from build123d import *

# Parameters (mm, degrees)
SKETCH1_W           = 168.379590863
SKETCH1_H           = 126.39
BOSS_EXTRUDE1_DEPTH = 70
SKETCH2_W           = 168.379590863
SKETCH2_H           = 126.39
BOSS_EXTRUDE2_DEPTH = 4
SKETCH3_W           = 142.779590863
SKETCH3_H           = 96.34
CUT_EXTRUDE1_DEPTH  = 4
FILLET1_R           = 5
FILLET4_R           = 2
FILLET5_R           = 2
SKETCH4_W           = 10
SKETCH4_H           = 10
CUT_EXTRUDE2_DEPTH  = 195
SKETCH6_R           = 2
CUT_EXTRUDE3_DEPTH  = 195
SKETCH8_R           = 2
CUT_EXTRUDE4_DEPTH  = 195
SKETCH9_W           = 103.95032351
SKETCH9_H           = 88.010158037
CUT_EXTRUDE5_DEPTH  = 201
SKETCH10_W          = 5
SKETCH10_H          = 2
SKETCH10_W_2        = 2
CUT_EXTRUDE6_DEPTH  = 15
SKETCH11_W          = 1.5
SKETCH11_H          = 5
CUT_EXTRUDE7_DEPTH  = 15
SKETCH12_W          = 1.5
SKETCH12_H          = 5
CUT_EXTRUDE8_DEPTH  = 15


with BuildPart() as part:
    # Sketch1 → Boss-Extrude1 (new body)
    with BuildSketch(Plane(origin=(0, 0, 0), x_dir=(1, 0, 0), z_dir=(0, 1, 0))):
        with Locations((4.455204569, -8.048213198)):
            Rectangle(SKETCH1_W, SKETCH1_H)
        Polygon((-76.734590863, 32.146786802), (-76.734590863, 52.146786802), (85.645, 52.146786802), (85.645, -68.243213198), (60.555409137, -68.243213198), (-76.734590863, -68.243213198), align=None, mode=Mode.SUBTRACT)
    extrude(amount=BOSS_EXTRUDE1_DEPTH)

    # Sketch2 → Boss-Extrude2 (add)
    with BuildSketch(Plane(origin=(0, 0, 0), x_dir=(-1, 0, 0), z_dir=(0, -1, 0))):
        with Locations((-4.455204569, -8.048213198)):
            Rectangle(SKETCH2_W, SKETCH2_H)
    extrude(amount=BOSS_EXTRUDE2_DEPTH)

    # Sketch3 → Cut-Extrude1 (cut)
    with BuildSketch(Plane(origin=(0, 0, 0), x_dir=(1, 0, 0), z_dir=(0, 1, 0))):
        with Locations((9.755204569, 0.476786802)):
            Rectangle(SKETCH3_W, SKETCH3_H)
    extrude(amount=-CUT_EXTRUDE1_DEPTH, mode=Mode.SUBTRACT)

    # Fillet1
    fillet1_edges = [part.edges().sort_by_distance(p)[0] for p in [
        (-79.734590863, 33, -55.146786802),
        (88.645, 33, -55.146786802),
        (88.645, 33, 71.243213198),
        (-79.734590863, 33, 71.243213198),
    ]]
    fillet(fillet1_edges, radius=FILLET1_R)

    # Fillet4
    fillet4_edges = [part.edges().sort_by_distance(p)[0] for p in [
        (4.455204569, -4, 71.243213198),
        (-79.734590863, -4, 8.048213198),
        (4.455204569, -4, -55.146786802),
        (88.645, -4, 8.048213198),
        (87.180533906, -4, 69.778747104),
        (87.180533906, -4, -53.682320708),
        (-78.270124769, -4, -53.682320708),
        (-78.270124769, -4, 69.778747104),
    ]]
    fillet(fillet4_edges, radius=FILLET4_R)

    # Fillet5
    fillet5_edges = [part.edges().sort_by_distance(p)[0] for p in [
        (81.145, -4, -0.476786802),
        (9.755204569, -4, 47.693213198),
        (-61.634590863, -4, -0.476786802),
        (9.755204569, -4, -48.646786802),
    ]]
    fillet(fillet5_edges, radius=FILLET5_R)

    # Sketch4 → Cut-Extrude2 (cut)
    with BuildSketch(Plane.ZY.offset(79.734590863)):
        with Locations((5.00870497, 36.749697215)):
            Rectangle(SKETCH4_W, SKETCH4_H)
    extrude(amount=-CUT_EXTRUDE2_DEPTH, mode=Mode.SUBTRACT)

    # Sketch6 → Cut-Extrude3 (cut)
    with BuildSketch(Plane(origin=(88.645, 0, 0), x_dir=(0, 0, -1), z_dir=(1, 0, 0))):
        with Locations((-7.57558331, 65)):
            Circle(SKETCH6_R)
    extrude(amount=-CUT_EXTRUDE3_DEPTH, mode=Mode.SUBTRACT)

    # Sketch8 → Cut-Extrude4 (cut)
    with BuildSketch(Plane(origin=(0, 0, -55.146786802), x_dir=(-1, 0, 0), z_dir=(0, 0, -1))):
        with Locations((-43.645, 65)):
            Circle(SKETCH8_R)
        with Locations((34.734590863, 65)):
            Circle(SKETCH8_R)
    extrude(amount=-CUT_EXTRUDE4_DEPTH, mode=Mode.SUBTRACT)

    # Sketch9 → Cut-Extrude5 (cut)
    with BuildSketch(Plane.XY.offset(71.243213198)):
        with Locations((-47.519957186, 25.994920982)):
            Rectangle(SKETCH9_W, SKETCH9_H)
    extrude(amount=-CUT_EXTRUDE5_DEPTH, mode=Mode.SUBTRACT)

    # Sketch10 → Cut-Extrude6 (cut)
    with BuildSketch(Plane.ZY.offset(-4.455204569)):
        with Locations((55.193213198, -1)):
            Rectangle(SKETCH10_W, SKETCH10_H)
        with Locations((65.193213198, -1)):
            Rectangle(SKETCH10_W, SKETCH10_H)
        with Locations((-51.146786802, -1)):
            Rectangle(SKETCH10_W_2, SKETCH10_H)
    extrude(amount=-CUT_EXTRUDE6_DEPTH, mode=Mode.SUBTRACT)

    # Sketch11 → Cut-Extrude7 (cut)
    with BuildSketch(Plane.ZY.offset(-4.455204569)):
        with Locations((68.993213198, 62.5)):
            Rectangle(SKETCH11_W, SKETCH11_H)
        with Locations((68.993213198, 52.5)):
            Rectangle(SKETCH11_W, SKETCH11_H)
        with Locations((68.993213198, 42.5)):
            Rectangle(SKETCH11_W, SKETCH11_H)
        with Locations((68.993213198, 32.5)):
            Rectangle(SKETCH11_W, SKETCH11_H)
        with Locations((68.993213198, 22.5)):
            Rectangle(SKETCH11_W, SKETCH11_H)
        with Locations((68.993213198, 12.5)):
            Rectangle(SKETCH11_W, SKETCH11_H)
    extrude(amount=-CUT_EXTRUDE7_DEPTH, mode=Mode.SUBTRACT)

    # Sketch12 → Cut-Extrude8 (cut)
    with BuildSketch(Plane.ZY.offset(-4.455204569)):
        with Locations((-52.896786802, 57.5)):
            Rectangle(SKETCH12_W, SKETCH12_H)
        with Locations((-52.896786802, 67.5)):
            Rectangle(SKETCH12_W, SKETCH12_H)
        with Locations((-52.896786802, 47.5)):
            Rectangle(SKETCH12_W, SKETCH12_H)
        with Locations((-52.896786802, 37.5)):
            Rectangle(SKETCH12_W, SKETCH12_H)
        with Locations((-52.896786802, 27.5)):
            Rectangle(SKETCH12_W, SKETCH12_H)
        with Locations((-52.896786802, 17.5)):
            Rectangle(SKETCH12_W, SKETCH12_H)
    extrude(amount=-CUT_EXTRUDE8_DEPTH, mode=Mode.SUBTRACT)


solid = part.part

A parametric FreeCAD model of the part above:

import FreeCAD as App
import Part
import Sketcher
from FreeCAD import Vector


def edges_at(feature, points):
    """Names of the edges that pass closest to the given points."""
    edges = feature.Shape.Edges
    near = lambda p: min(range(len(edges)), key=lambda i: edges[i].distToShape(Part.Vertex(*p))[0])
    return sorted({f"Edge{near(p) + 1}" for p in points})


def add_polygon(sketch, points):
    """Adds a closed chain of lines whose ends are joined by coincident constraints."""
    first, n = sketch.GeometryCount, len(points)
    for a, b in zip(points, points[1:] + points[:1]):
        sketch.addGeometry(Part.LineSegment(App.Vector(*a, 0), App.Vector(*b, 0)), False)
    for i in range(n):
        sketch.addConstraint(Sketcher.Constraint("Coincident", first + i, 2, first + (i + 1) % n, 1))

doc = App.newDocument("Part")
body = doc.addObject("PartDesign::Body", "Body")

sketch1 = doc.addObject("Sketcher::SketchObject", "Sketch")
body.addObject(sketch1)
sketch1.AttachmentSupport = (doc.XZ_Plane, [""])
sketch1.MapMode = "FlatFace"
add_polygon(sketch1, [(-80, -55), (-80, 71), (89, 71), (89, -55)])
add_polygon(sketch1, [(-77, 68), (-77, -52), (86, -52), (86, 68)])
sketch1.addConstraint([
    Sketcher.Constraint("Vertical", 0),
    Sketcher.Constraint("Horizontal", 1),
    Sketcher.Constraint("Vertical", 2),
    Sketcher.Constraint("Horizontal", 3),
    Sketcher.Constraint("Vertical", 4),
    Sketcher.Constraint("Horizontal", 5),
    Sketcher.Constraint("Vertical", 6),
    Sketcher.Constraint("Horizontal", 7),
    Sketcher.Constraint("DistanceX", 3, 2, 4, 2, 3.0),
    Sketcher.Constraint("DistanceY", 3, 2, 4, 2, 3.0),
    Sketcher.Constraint("DistanceX", 5, 2, 2, 2, 3.0),
    Sketcher.Constraint("DistanceY", 6, 2, 1, 2, 3.0),
    Sketcher.Constraint("DistanceY", 0, 1, 0, 2, 126.39),
    Sketcher.Constraint("DistanceX", -1, 1, 1, 2, 88.645),
    Sketcher.Constraint("DistanceX", 1, 1, 1, 2, 168.379591),
    Sketcher.Constraint("DistanceY", -1, 1, 0, 2, 71.243213),
])
pad1 = doc.addObject("PartDesign::Pad", "Pad")
body.addObject(pad1)
pad1.Profile = sketch1
pad1.Length = 70
pad1.Reversed = True

sketch2 = doc.addObject("Sketcher::SketchObject", "Sketch001")
body.addObject(sketch2)
sketch2.AttachmentSupport = (doc.XZ_Plane, [""])
sketch2.MapMode = "FlatFace"
add_polygon(sketch2, [(89, -55), (89, 71), (-80, 71), (-80, -55)])
sketch2.addConstraint([
    Sketcher.Constraint("Vertical", 0),
    Sketcher.Constraint("Horizontal", 1),
    Sketcher.Constraint("Vertical", 2),
    Sketcher.Constraint("Horizontal", 3),
    Sketcher.Constraint("DistanceY", 0, 1, 0, 2, 126.39),
    Sketcher.Constraint("DistanceX", -1, 1, 0, 2, 88.645),
    Sketcher.Constraint("DistanceX", 1, 2, 1, 1, 168.379591),
    Sketcher.Constraint("DistanceY", -1, 1, 0, 2, 71.243213),
])
pad2 = doc.addObject("PartDesign::Pad", "Pad001")
body.addObject(pad2)
pad2.Profile = sketch2
pad2.Length = 4

sketch3 = doc.addObject("Sketcher::SketchObject", "Sketch002")
body.addObject(sketch3)
sketch3.AttachmentSupport = (doc.XZ_Plane, [""])
sketch3.MapMode = "FlatFace"
add_polygon(sketch3, [(-62, -49), (-62, 48), (81, 48), (81, -49)])
sketch3.addConstraint([
    Sketcher.Constraint("Vertical", 0),
    Sketcher.Constraint("Horizontal", 1),
    Sketcher.Constraint("Vertical", 2),
    Sketcher.Constraint("Horizontal", 3),
    Sketcher.Constraint("DistanceY", 0, 1, 0, 2, 96.34),
    Sketcher.Constraint("DistanceX", -1, 1, 1, 2, 81.145),
    Sketcher.Constraint("DistanceX", 1, 1, 1, 2, 142.779591),
    Sketcher.Constraint("DistanceY", -1, 1, 0, 2, 47.693213),
])
pocket1 = doc.addObject("PartDesign::Pocket", "Pocket")
body.addObject(pocket1)
pocket1.Profile = sketch3
pocket1.Length = 4
pocket1.Reversed = True
doc.recompute()

fillet = doc.addObject("PartDesign::Fillet", "Fillet")
body.addObject(fillet)
fillet.Base = (pocket1, edges_at(pocket1, [
    (-79.735, 33, -55.147),
    (88.645, 33, -55.147),
    (88.645, 33, 71.243),
    (-79.735, 33, 71.243),
]))
fillet.Radius = 5
doc.recompute()

fillet2 = doc.addObject("PartDesign::Fillet", "Fillet001")
body.addObject(fillet2)
fillet2.Base = (fillet, edges_at(fillet, [
    (4.455, -4, 71.243),
    (-79.735, -4, 8.048),
    (4.455, -4, -55.147),
    (88.645, -4, 8.048),
    (87.181, -4, 69.779),
    (87.181, -4, -53.682),
    (-78.27, -4, -53.682),
    (-78.27, -4, 69.779),
]))
fillet2.Radius = 2
doc.recompute()

fillet3 = doc.addObject("PartDesign::Fillet", "Fillet002")
body.addObject(fillet3)
fillet3.Base = (fillet2, edges_at(fillet2, [
    (81.145, -4, -0.477),
    (9.755, -4, 47.693),
    (-61.635, -4, -0.477),
    (9.755, -4, -48.647),
]))
fillet3.Radius = 2

sketch4 = doc.addObject("Sketcher::SketchObject", "Sketch003")
body.addObject(sketch4)
sketch4.AttachmentSupport = (doc.YZ_Plane, [""])
sketch4.MapMode = "FlatFace"
sketch4.AttachmentOffset = App.Placement(Vector(0, 0, -79.734591), App.Rotation())
add_polygon(sketch4, [(42, 0), (32, 0), (32, 10), (42, 10)])
sketch4.addConstraint([
    Sketcher.Constraint("Horizontal", 0),
    Sketcher.Constraint("Vertical", 1),
    Sketcher.Constraint("Horizontal", 2),
    Sketcher.Constraint("Vertical", 3),
    Sketcher.Constraint("Equal", 2, 1),
    Sketcher.Constraint("DistanceX", 0, 2, 0, 1, 10.0),
    Sketcher.Constraint("DistanceX", -1, 1, 0, 2, 31.749697),
    Sketcher.Constraint("DistanceY", -1, 1, 0, 2, 0.008705),
])
pocket2 = doc.addObject("PartDesign::Pocket", "Pocket001")
body.addObject(pocket2)
pocket2.Profile = sketch4
pocket2.Length = 195
pocket2.Reversed = True

sketch5 = doc.addObject("Sketcher::SketchObject", "Sketch004")
body.addObject(sketch5)
sketch5.AttachmentSupport = (doc.YZ_Plane, [""])
sketch5.MapMode = "FlatFace"
sketch5.AttachmentOffset = App.Placement(Vector(0, 0, 88.645), App.Rotation())
sketch5.addGeometry(Part.Circle(Vector(65, 7.6, 0), Vector(0, 0, 1), 2), False)
sketch5.addConstraint([
    Sketcher.Constraint("Diameter", 0, 4.0),
    Sketcher.Constraint("DistanceX", -1, 1, 0, 3, 65.0),
    Sketcher.Constraint("DistanceY", -1, 1, 0, 3, 7.575583),
])
pocket3 = doc.addObject("PartDesign::Pocket", "Pocket002")
body.addObject(pocket3)
pocket3.Profile = sketch5
pocket3.Length = 195

sketch6 = doc.addObject("Sketcher::SketchObject", "Sketch005")
body.addObject(sketch6)
sketch6.AttachmentSupport = (doc.XY_Plane, [""])
sketch6.MapMode = "FlatFace"
sketch6.AttachmentOffset = App.Placement(Vector(0, 0, -55.146787), App.Rotation())
sketch6.addGeometry([
    Part.Circle(Vector(43.6, 65, 0), Vector(0, 0, 1), 2),
    Part.Circle(Vector(-34.7, 65, 0), Vector(0, 0, 1), 2),
], False)
sketch6.addConstraint([
    Sketcher.Constraint("Equal", 0, 1),
    Sketcher.Constraint("Horizontal", 0, 3, 1, 3),
    Sketcher.Constraint("Diameter", 0, 4.0),
    Sketcher.Constraint("DistanceY", -1, 1, 0, 3, 65.0),
    Sketcher.Constraint("DistanceX", -1, 1, 0, 3, 43.645),
    Sketcher.Constraint("DistanceX", 1, 3, -1, 1, 34.734591),
])
pocket4 = doc.addObject("PartDesign::Pocket", "Pocket003")
body.addObject(pocket4)
pocket4.Profile = sketch6
pocket4.Length = 195
pocket4.Reversed = True

sketch7 = doc.addObject("Sketcher::SketchObject", "Sketch006")
body.addObject(sketch7)
sketch7.AttachmentSupport = (doc.XY_Plane, [""])
sketch7.MapMode = "FlatFace"
sketch7.AttachmentOffset = App.Placement(Vector(0, 0, 71.243213), App.Rotation())
add_polygon(sketch7, [(-99, 70), (-99, -18), (4, -18), (4, 70)])
sketch7.addConstraint([
    Sketcher.Constraint("Vertical", 0),
    Sketcher.Constraint("Horizontal", 1),
    Sketcher.Constraint("Vertical", 2),
    Sketcher.Constraint("Horizontal", 3),
    Sketcher.Constraint("DistanceY", -1, 1, 2, 2, 70.0),
    Sketcher.Constraint("DistanceY", 0, 2, 0, 1, 88.010158),
    Sketcher.Constraint("DistanceX", 1, 1, 1, 2, 103.950324),
    Sketcher.Constraint("DistanceX", 0, 2, -1, 1, 99.495119),
])
pocket5 = doc.addObject("PartDesign::Pocket", "Pocket004")
body.addObject(pocket5)
pocket5.Profile = sketch7
pocket5.Length = 201

sketch8 = doc.addObject("Sketcher::SketchObject", "Sketch007")
body.addObject(sketch8)
sketch8.AttachmentSupport = (doc.YZ_Plane, [""])
sketch8.MapMode = "FlatFace"
sketch8.AttachmentOffset = App.Placement(Vector(0, 0, 4.455205), App.Rotation())
add_polygon(sketch8, [(0, 52.7), (-2, 52.7), (-2, 57.7), (0, 57.7)])
add_polygon(sketch8, [(0, 62.7), (-2, 62.7), (-2, 67.7), (0, 67.7)])
add_polygon(sketch8, [(0, -52.1), (-2, -52.1), (-2, -50.1), (0, -50.1)])
sketch8.addConstraint([
    Sketcher.Constraint("Horizontal", 0),
    Sketcher.Constraint("Vertical", 1),
    Sketcher.Constraint("Horizontal", 2),
    Sketcher.Constraint("Vertical", 3),
    Sketcher.Constraint("Horizontal", 4),
    Sketcher.Constraint("Vertical", 5),
    Sketcher.Constraint("Horizontal", 6),
    Sketcher.Constraint("Vertical", 7),
    Sketcher.Constraint("Horizontal", 8),
    Sketcher.Constraint("Vertical", 9),
    Sketcher.Constraint("Horizontal", 10),
    Sketcher.Constraint("Vertical", 11),
    Sketcher.Constraint("PointOnObject", 2, 2, -2),
    Sketcher.Constraint("PointOnObject", 6, 2, -2),
    Sketcher.Constraint("PointOnObject", 10, 2, -2),
    Sketcher.Constraint("Vertical", 1, 2, 4, 2),
    Sketcher.Constraint("Vertical", 5, 2, 8, 2),
    Sketcher.Constraint("Equal", 3, 5),
    Sketcher.Constraint("Equal", 10, 9),
    Sketcher.Constraint("DistanceX", 0, 2, 0, 1, 2.0),
    Sketcher.Constraint("DistanceY", 1, 1, 1, 2, 5.0),
    Sketcher.Constraint("DistanceY", 1, 2, 4, 2, 5.0),
    Sketcher.Constraint("DistanceY", 8, 2, 0, 2, 104.84),
    Sketcher.Constraint("DistanceY", -1, 1, 0, 2, 52.693213),
])
pocket6 = doc.addObject("PartDesign::Pocket", "Pocket005")
body.addObject(pocket6)
pocket6.Profile = sketch8
pocket6.Length = 15
pocket6.Reversed = True

sketch9 = doc.addObject("Sketcher::SketchObject", "Sketch008")
body.addObject(sketch9)
sketch9.AttachmentSupport = (doc.YZ_Plane, [""])
sketch9.MapMode = "FlatFace"
sketch9.AttachmentOffset = App.Placement(Vector(0, 0, 4.455205), App.Rotation())
add_polygon(sketch9, [(65, 68.2), (60, 68.2), (60, 69.7), (65, 69.7)])
add_polygon(sketch9, [(55, 68.2), (50, 68.2), (50, 69.7), (55, 69.7)])
add_polygon(sketch9, [(45, 68.2), (40, 68.2), (40, 69.7), (45, 69.7)])
add_polygon(sketch9, [(35, 68.2), (30, 68.2), (30, 69.7), (35, 69.7)])
add_polygon(sketch9, [(25, 68.2), (20, 68.2), (20, 69.7), (25, 69.7)])
add_polygon(sketch9, [(15, 68.2), (10, 68.2), (10, 69.7), (15, 69.7)])
sketch9.addConstraint([
    Sketcher.Constraint("Horizontal", 0),
    Sketcher.Constraint("Vertical", 1),
    Sketcher.Constraint("Horizontal", 2),
    Sketcher.Constraint("Vertical", 3),
    Sketcher.Constraint("Horizontal", 4),
    Sketcher.Constraint("Vertical", 5),
    Sketcher.Constraint("Horizontal", 6),
    Sketcher.Constraint("Vertical", 7),
    Sketcher.Constraint("Horizontal", 8),
    Sketcher.Constraint("Vertical", 9),
    Sketcher.Constraint("Horizontal", 10),
    Sketcher.Constraint("Vertical", 11),
    Sketcher.Constraint("Horizontal", 12),
    Sketcher.Constraint("Vertical", 13),
    Sketcher.Constraint("Horizontal", 14),
    Sketcher.Constraint("Vertical", 15),
    Sketcher.Constraint("Horizontal", 16),
    Sketcher.Constraint("Vertical", 17),
    Sketcher.Constraint("Horizontal", 18),
    Sketcher.Constraint("Vertical", 19),
    Sketcher.Constraint("Horizontal", 20),
    Sketcher.Constraint("Vertical", 21),
    Sketcher.Constraint("Horizontal", 22),
    Sketcher.Constraint("Vertical", 23),
    Sketcher.Constraint("Horizontal", 3, 2, 4, 2),
    Sketcher.Constraint("Horizontal", 2, 2, 5, 2),
    Sketcher.Constraint("Horizontal", 7, 2, 8, 2),
    Sketcher.Constraint("Horizontal", 6, 2, 9, 2),
    Sketcher.Constraint("Horizontal", 11, 2, 12, 2),
    Sketcher.Constraint("Horizontal", 10, 2, 13, 2),
    Sketcher.Constraint("Horizontal", 15, 2, 16, 2),
    Sketcher.Constraint("Horizontal", 14, 2, 17, 2),
    Sketcher.Constraint("Horizontal", 19, 2, 20, 2),
    Sketcher.Constraint("Horizontal", 18, 2, 21, 2),
    Sketcher.Constraint("Equal", 2, 4),
    Sketcher.Constraint("Equal", 6, 8),
    Sketcher.Constraint("Equal", 10, 12),
    Sketcher.Constraint("Equal", 14, 16),
    Sketcher.Constraint("Equal", 18, 20),
    Sketcher.Constraint("DistanceX", 0, 2, 0, 1, 5.0),
    Sketcher.Constraint("DistanceY", 1, 1, 1, 2, 1.5),
    Sketcher.Constraint("DistanceX", -1, 1, 0, 2, 60.0),
    Sketcher.Constraint("DistanceX", -1, 1, 4, 2, 50.0),
    Sketcher.Constraint("DistanceX", -1, 1, 8, 2, 40.0),
    Sketcher.Constraint("DistanceX", -1, 1, 12, 2, 30.0),
    Sketcher.Constraint("DistanceX", -1, 1, 16, 2, 20.0),
    Sketcher.Constraint("DistanceX", -1, 1, 20, 2, 10.0),
    Sketcher.Constraint("DistanceY", -1, 1, 0, 2, 68.243213),
])
pocket7 = doc.addObject("PartDesign::Pocket", "Pocket006")
body.addObject(pocket7)
pocket7.Profile = sketch9
pocket7.Length = 15
pocket7.Reversed = True

sketch10 = doc.addObject("Sketcher::SketchObject", "Sketch009")
body.addObject(sketch10)
sketch10.AttachmentSupport = (doc.YZ_Plane, [""])
sketch10.MapMode = "FlatFace"
sketch10.AttachmentOffset = App.Placement(Vector(0, 0, 4.455205), App.Rotation())
add_polygon(sketch10, [(60, -53.6), (55, -53.6), (55, -52.1), (60, -52.1)])
add_polygon(sketch10, [(70, -53.6), (65, -53.6), (65, -52.1), (70, -52.1)])
add_polygon(sketch10, [(50, -53.6), (45, -53.6), (45, -52.1), (50, -52.1)])
add_polygon(sketch10, [(40, -53.6), (35, -53.6), (35, -52.1), (40, -52.1)])
add_polygon(sketch10, [(30, -53.6), (25, -53.6), (25, -52.1), (30, -52.1)])
add_polygon(sketch10, [(20, -53.6), (15, -53.6), (15, -52.1), (20, -52.1)])
sketch10.addConstraint([
    Sketcher.Constraint("Horizontal", 0),
    Sketcher.Constraint("Vertical", 1),
    Sketcher.Constraint("Horizontal", 2),
    Sketcher.Constraint("Vertical", 3),
    Sketcher.Constraint("Horizontal", 4),
    Sketcher.Constraint("Vertical", 5),
    Sketcher.Constraint("Horizontal", 6),
    Sketcher.Constraint("Vertical", 7),
    Sketcher.Constraint("Horizontal", 8),
    Sketcher.Constraint("Vertical", 9),
    Sketcher.Constraint("Horizontal", 10),
    Sketcher.Constraint("Vertical", 11),
    Sketcher.Constraint("Horizontal", 12),
    Sketcher.Constraint("Vertical", 13),
    Sketcher.Constraint("Horizontal", 14),
    Sketcher.Constraint("Vertical", 15),
    Sketcher.Constraint("Horizontal", 16),
    Sketcher.Constraint("Vertical", 17),
    Sketcher.Constraint("Horizontal", 18),
    Sketcher.Constraint("Vertical", 19),
    Sketcher.Constraint("Horizontal", 20),
    Sketcher.Constraint("Vertical", 21),
    Sketcher.Constraint("Horizontal", 22),
    Sketcher.Constraint("Vertical", 23),
    Sketcher.Constraint("Horizontal", 3, 2, 4, 2),
    Sketcher.Constraint("Horizontal", 2, 2, 5, 2),
    Sketcher.Constraint("Horizontal", 7, 2, 8, 2),
    Sketcher.Constraint("Horizontal", 6, 2, 9, 2),
    Sketcher.Constraint("Horizontal", 11, 2, 12, 2),
    Sketcher.Constraint("Horizontal", 10, 2, 13, 2),
    Sketcher.Constraint("Horizontal", 15, 2, 16, 2),
    Sketcher.Constraint("Horizontal", 14, 2, 17, 2),
    Sketcher.Constraint("Horizontal", 19, 2, 20, 2),
    Sketcher.Constraint("Horizontal", 18, 2, 21, 2),
    Sketcher.Constraint("Equal", 2, 4),
    Sketcher.Constraint("Equal", 6, 8),
    Sketcher.Constraint("Equal", 10, 12),
    Sketcher.Constraint("Equal", 14, 16),
    Sketcher.Constraint("Equal", 18, 20),
    Sketcher.Constraint("DistanceX", 0, 2, 0, 1, 5.0),
    Sketcher.Constraint("DistanceY", 1, 1, 1, 2, 1.5),
    Sketcher.Constraint("DistanceX", -1, 1, 0, 2, 55.0),
    Sketcher.Constraint("DistanceX", -1, 1, 4, 2, 65.0),
    Sketcher.Constraint("DistanceX", -1, 1, 8, 2, 45.0),
    Sketcher.Constraint("DistanceX", -1, 1, 12, 2, 35.0),
    Sketcher.Constraint("DistanceX", -1, 1, 16, 2, 25.0),
    Sketcher.Constraint("DistanceX", -1, 1, 20, 2, 15.0),
    Sketcher.Constraint("DistanceY", 0, 2, -1, 1, 53.646787),
])
pocket8 = doc.addObject("PartDesign::Pocket", "Pocket007")
body.addObject(pocket8)
pocket8.Profile = sketch10
pocket8.Length = 15
pocket8.Reversed = True

doc.recompute()
